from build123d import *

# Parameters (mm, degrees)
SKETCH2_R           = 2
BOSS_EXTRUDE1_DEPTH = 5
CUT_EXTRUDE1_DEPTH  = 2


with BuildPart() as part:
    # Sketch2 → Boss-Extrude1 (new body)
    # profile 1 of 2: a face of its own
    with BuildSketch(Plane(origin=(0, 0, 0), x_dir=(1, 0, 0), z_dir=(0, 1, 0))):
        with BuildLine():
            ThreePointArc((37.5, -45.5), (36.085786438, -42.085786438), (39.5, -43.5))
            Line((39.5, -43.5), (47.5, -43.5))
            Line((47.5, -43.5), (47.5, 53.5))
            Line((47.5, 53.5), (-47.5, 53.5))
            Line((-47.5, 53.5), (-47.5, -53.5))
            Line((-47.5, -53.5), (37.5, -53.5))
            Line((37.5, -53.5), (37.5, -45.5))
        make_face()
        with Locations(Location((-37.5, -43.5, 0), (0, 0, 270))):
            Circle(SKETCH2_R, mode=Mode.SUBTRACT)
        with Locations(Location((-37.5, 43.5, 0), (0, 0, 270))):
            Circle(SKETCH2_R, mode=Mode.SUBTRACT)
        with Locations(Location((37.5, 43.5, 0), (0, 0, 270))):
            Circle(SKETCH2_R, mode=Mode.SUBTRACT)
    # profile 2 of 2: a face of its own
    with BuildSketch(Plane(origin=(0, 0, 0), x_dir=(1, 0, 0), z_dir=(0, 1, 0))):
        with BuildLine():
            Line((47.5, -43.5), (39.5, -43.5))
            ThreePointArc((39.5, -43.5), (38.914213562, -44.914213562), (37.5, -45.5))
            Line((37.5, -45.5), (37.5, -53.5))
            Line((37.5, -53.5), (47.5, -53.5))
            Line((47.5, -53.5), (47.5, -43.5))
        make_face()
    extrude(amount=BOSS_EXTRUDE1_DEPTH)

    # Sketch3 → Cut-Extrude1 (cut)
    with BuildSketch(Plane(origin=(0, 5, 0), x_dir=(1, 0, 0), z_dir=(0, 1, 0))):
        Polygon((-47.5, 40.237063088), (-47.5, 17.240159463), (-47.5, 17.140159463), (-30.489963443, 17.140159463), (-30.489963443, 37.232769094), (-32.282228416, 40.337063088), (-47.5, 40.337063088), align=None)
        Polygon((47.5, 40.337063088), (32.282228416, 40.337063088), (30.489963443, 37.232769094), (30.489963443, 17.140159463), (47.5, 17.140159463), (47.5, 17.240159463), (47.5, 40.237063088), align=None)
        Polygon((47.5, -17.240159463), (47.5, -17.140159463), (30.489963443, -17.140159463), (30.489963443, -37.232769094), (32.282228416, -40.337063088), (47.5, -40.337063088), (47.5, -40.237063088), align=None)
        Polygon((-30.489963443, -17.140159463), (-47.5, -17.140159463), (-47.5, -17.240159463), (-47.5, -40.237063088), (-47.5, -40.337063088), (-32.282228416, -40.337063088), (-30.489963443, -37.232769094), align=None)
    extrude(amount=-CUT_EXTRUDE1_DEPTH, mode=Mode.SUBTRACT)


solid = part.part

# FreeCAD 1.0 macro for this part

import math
import FreeCAD as App
import Part
import Sketcher
from FreeCAD import Vector
Q = App.Units.Quantity

doc = App.newDocument("Part")
body = doc.addObject("PartDesign::Body", "Body")

# Sketch on XZ plane
sketch1 = body.newObject("Sketcher::SketchObject", "Sketch")
sketch1.AttachmentSupport = (doc.getObject("XZ_Plane"), [""])
sketch1.MapMode = "FlatFace"
sketch1.addGeometry(Part.LineSegment(Vector(-47.5, 53.5, 0), Vector(47.5, 53.5, 0)), False)
sketch1.addGeometry(Part.LineSegment(Vector(47.5, 53.5, 0), Vector(47.5, -53.5, 0)), False)
sketch1.addGeometry(Part.LineSegment(Vector(47.5, -53.5, 0), Vector(-47.5, -53.5, 0)), False)
sketch1.addGeometry(Part.LineSegment(Vector(-47.5, -53.5, 0), Vector(-47.5, 53.5, 0)), False)
sketch1.addGeometry(Part.ArcOfCircle(Part.Circle(Vector(37.5, 43.5, 0), Vector(0, 0, 1), 2), math.radians(90), math.radians(360)), False)
sketch1.addGeometry(Part.ArcOfCircle(Part.Circle(Vector(37.5, 43.5, 0), Vector(0, 0, 1), 2), math.radians(0), math.radians(90)), False)
sketch1.addGeometry(Part.Circle(Vector(-37.5, 43.5, 0), Vector(0, 0, 1), 2), False)
sketch1.addGeometry(Part.Circle(Vector(-37.5, -43.5, 0), Vector(0, 0, 1), 2), False)
sketch1.addGeometry(Part.Circle(Vector(37.5, -43.5, 0), Vector(0, 0, 1), 2), False)
sketch1.addConstraint(Sketcher.Constraint("Coincident", 0, 2, 1, 1))
sketch1.addConstraint(Sketcher.Constraint("Coincident", 1, 2, 2, 1))
sketch1.addConstraint(Sketcher.Constraint("Coincident", 2, 2, 3, 1))
sketch1.addConstraint(Sketcher.Constraint("Coincident", 3, 2, 0, 1))
sketch1.addConstraint(Sketcher.Constraint("Tangent", 4, 1, 5, 2))
sketch1.addConstraint(Sketcher.Constraint("Coincident", 5, 1, 4, 2))
sketch1.addConstraint(Sketcher.Constraint("Horizontal", 0))
sketch1.addConstraint(Sketcher.Constraint("Vertical", 1))
sketch1.addConstraint(Sketcher.Constraint("Horizontal", 2))
sketch1.addConstraint(Sketcher.Constraint("Vertical", 3))
sketch1.addConstraint(Sketcher.Constraint("Equal", 5, 6))
sketch1.addConstraint(Sketcher.Constraint("Equal", 6, 7))
sketch1.addConstraint(Sketcher.Constraint("Equal", 7, 8))
sketch1.addConstraint(Sketcher.Constraint("Symmetric", 4, 3, 7, 3, -1, 1))
sketch1.addConstraint(Sketcher.Constraint("Symmetric", 6, 3, 8, 3, -1, 1))
sketch1.addConstraint(Sketcher.Constraint("Symmetric", 0, 2, 2, 2, -1, 1))
sketch1.addConstraint(Sketcher.Constraint("Symmetric", 4, 3, 6, 3, -2))
sketch1.addConstraint(Sketcher.Constraint("Horizontal", 6, 3, 5, 1))
sketch1.addConstraint(Sketcher.Constraint("Vertical", 8, 3, 4, 1))
sketch1.addConstraint(Sketcher.Constraint("Diameter", 6, 4.0))
sketch1.addConstraint(Sketcher.Constraint("DistanceX", 0, 1, 0, 2, 95.0))
sketch1.addConstraint(Sketcher.Constraint("DistanceY", 1, 2, 1, 1, 107.0))
sketch1.addConstraint(Sketcher.Constraint("DistanceX", 6, 3, 5, 3, 75.0))
sketch1.addConstraint(Sketcher.Constraint("DistanceY", 7, 3, 6, 3, 87.0))
pad1 = body.newObject("PartDesign::Pad", "Pad")
pad1.Profile = sketch1
pad1.Length = 5
pad1.Reversed = True

# Sketch on XZ plane
sketch2 = body.newObject("Sketcher::SketchObject", "Sketch001")
sketch2.AttachmentSupport = (doc.getObject("XZ_Plane"), [""])
sketch2.MapMode = "FlatFace"
sketch2.AttachmentOffset = App.Placement(Vector(0, 0, -5), App.Rotation())
sketch2.addGeometry(Part.LineSegment(Vector(-47.5, -17.1, 0), Vector(-30.5, -17.1, 0)), False)
sketch2.addGeometry(Part.LineSegment(Vector(-30.5, -17.1, 0), Vector(-30.5, -37.2, 0)), False)
sketch2.addGeometry(Part.LineSegment(Vector(-30.5, -37.2, 0), Vector(-32.3, -40.3, 0)), False)
sketch2.addGeometry(Part.LineSegment(Vector(-32.3, -40.3, 0), Vector(-47.5, -40.3, 0)), False)
sketch2.addGeometry(Part.LineSegment(Vector(-47.5, -40.3, 0), Vector(-47.5, -17.1, 0)), False)
sketch2.addGeometry(Part.LineSegment(Vector(47.5, -40.3, 0), Vector(32.3, -40.3, 0)), False)
sketch2.addGeometry(Part.LineSegment(Vector(32.3, -40.3, 0), Vector(30.5, -37.2, 0)), False)
sketch2.addGeometry(Part.LineSegment(Vector(30.5, -37.2, 0), Vector(30.5, -17.1, 0)), False)
sketch2.addGeometry(Part.LineSegment(Vector(30.5, -17.1, 0), Vector(47.5, -17.1, 0)), False)
sketch2.addGeometry(Part.LineSegment(Vector(47.5, -17.1, 0), Vector(47.5, -40.3, 0)), False)
sketch2.addGeometry(Part.LineSegment(Vector(47.5, 17.1, 0), Vector(30.5, 17.1, 0)), False)
sketch2.addGeometry(Part.LineSegment(Vector(30.5, 17.1, 0), Vector(30.5, 37.2, 0)), False)
sketch2.addGeometry(Part.LineSegment(Vector(30.5, 37.2, 0), Vector(32.3, 40.3, 0)), False)
sketch2.addGeometry(Part.LineSegment(Vector(32.3, 40.3, 0), Vector(47.5, 40.3, 0)), False)
sketch2.addGeometry(Part.LineSegment(Vector(47.5, 40.3, 0), Vector(47.5, 17.1, 0)), False)
sketch2.addGeometry(Part.LineSegment(Vector(-30.5, 17.1, 0), Vector(-47.5, 17.1, 0)), False)
sketch2.addGeometry(Part.LineSegment(Vector(-47.5, 17.1, 0), Vector(-47.5, 40.3, 0)), False)
sketch2.addGeometry(Part.LineSegment(Vector(-47.5, 40.3, 0), Vector(-32.3, 40.3, 0)), False)
sketch2.addGeometry(Part.LineSegment(Vector(-32.3, 40.3, 0), Vector(-30.5, 37.2, 0)), False)
sketch2.addGeometry(Part.LineSegment(Vector(-30.5, 37.2, 0), Vector(-30.5, 17.1, 0)), False)
sketch2.addConstraint(Sketcher.Constraint("Coincident", 0, 2, 1, 1))
sketch2.addConstraint(Sketcher.Constraint("Coincident", 1, 2, 2, 1))
sketch2.addConstraint(Sketcher.Constraint("Coincident", 2, 2, 3, 1))
sketch2.addConstraint(Sketcher.Constraint("Coincident", 3, 2, 4, 1))
sketch2.addConstraint(Sketcher.Constraint("Coincident", 4, 2, 0, 1))
sketch2.addConstraint(Sketcher.Constraint("Coincident", 5, 2, 6, 1))
sketch2.addConstraint(Sketcher.Constraint("Coincident", 6, 2, 7, 1))
sketch2.addConstraint(Sketcher.Constraint("Coincident", 7, 2, 8, 1))
sketch2.addConstraint(Sketcher.Constraint("Coincident", 8, 2, 9, 1))
sketch2.addConstraint(Sketcher.Constraint("Coincident", 9, 2, 5, 1))
sketch2.addConstraint(Sketcher.Constraint("Coincident", 10, 2, 11, 1))
sketch2.addConstraint(Sketcher.Constraint("Coincident", 11, 2, 12, 1))
sketch2.addConstraint(Sketcher.Constraint("Coincident", 12, 2, 13, 1))
sketch2.addConstraint(Sketcher.Constraint("Coincident", 13, 2, 14, 1))
sketch2.addConstraint(Sketcher.Constraint("Coincident", 14, 2, 10, 1))
sketch2.addConstraint(Sketcher.Constraint("Coincident", 15, 2, 16, 1))
sketch2.addConstraint(Sketcher.Constraint("Coincident", 16, 2, 17, 1))
sketch2.addConstraint(Sketcher.Constraint("Coincident", 17, 2, 18, 1))
sketch2.addConstraint(Sketcher.Constraint("Coincident", 18, 2, 19, 1))
sketch2.addConstraint(Sketcher.Constraint("Coincident", 19, 2, 15, 1))
sketch2.addConstraint(Sketcher.Constraint("Horizontal", 0))
sketch2.addConstraint(Sketcher.Constraint("Vertical", 1))
sketch2.addConstraint(Sketcher.Constraint("Horizontal", 3))
sketch2.addConstraint(Sketcher.Constraint("Vertical", 4))
sketch2.addConstraint(Sketcher.Constraint("Horizontal", 5))
sketch2.addConstraint(Sketcher.Constraint("Vertical", 7))
sketch2.addConstraint(Sketcher.Constraint("Horizontal", 8))
sketch2.addConstraint(Sketcher.Constraint("Vertical", 9))
sketch2.addConstraint(Sketcher.Constraint("Horizontal", 10))
sketch2.addConstraint(Sketcher.Constraint("Vertical", 11))
sketch2.addConstraint(Sketcher.Constraint("Horizontal", 13))
sketch2.addConstraint(Sketcher.Constraint("Vertical", 14))
sketch2.addConstraint(Sketcher.Constraint("Horizontal", 15))
sketch2.addConstraint(Sketcher.Constraint("Vertical", 16))
sketch2.addConstraint(Sketcher.Constraint("Horizontal", 17))
sketch2.addConstraint(Sketcher.Constraint("Vertical", 19))
sketch2.addConstraint(Sketcher.Constraint("Symmetric", 0, 2, 10, 2, -1, 1))
sketch2.addConstraint(Sketcher.Constraint("Symmetric", 2, 2, 12, 2, -1, 1))
sketch2.addConstraint(Sketcher.Constraint("Symmetric", 8, 2, 15, 2, -1, 1))
sketch2.addConstraint(Sketcher.Constraint("Symmetric", 5, 2, 17, 2, -1, 1))
sketch2.addConstraint(Sketcher.Constraint("Symmetric", 6, 2, 18, 2, -1, 1))
sketch2.addConstraint(Sketcher.Constraint("Symmetric", 2, 2, 5, 2, -2))
sketch2.addConstraint(Sketcher.Constraint("Symmetric", 1, 2, 6, 2, -2))
sketch2.addConstraint(Sketcher.Constraint("Symmetric", 4, 2, 8, 2, -2))
sketch2.addConstraint(Sketcher.Constraint("Parallel", 2, 12))
sketch2.addConstraint(Sketcher.Constraint("Vertical", 9, 2, 13, 2))
sketch2.addConstraint(Sketcher.Constraint("Angle", 2, Q("-120 deg")))
sketch2.addConstraint(Sketcher.Constraint("DistanceX", 3, 2, -1, 1, 47.5))
sketch2.addConstraint(Sketcher.Constraint("DistanceX", 3, 2, 3, 1, 15.217772))
sketch2.addConstraint(Sketcher.Constraint("DistanceY", 1, 2, 1, 1, 20.09261))
sketch2.addConstraint(Sketcher.Constraint("Distance", 2, 3.58453))
sketch2.addConstraint(Sketcher.Constraint("DistanceY", 0, 2, -1, 1, 17.140159))
pocket1 = body.newObject("PartDesign::Pocket", "Pocket")
pocket1.Profile = sketch2
pocket1.Length = 2
pocket1.Reversed = True

doc.recompute()
